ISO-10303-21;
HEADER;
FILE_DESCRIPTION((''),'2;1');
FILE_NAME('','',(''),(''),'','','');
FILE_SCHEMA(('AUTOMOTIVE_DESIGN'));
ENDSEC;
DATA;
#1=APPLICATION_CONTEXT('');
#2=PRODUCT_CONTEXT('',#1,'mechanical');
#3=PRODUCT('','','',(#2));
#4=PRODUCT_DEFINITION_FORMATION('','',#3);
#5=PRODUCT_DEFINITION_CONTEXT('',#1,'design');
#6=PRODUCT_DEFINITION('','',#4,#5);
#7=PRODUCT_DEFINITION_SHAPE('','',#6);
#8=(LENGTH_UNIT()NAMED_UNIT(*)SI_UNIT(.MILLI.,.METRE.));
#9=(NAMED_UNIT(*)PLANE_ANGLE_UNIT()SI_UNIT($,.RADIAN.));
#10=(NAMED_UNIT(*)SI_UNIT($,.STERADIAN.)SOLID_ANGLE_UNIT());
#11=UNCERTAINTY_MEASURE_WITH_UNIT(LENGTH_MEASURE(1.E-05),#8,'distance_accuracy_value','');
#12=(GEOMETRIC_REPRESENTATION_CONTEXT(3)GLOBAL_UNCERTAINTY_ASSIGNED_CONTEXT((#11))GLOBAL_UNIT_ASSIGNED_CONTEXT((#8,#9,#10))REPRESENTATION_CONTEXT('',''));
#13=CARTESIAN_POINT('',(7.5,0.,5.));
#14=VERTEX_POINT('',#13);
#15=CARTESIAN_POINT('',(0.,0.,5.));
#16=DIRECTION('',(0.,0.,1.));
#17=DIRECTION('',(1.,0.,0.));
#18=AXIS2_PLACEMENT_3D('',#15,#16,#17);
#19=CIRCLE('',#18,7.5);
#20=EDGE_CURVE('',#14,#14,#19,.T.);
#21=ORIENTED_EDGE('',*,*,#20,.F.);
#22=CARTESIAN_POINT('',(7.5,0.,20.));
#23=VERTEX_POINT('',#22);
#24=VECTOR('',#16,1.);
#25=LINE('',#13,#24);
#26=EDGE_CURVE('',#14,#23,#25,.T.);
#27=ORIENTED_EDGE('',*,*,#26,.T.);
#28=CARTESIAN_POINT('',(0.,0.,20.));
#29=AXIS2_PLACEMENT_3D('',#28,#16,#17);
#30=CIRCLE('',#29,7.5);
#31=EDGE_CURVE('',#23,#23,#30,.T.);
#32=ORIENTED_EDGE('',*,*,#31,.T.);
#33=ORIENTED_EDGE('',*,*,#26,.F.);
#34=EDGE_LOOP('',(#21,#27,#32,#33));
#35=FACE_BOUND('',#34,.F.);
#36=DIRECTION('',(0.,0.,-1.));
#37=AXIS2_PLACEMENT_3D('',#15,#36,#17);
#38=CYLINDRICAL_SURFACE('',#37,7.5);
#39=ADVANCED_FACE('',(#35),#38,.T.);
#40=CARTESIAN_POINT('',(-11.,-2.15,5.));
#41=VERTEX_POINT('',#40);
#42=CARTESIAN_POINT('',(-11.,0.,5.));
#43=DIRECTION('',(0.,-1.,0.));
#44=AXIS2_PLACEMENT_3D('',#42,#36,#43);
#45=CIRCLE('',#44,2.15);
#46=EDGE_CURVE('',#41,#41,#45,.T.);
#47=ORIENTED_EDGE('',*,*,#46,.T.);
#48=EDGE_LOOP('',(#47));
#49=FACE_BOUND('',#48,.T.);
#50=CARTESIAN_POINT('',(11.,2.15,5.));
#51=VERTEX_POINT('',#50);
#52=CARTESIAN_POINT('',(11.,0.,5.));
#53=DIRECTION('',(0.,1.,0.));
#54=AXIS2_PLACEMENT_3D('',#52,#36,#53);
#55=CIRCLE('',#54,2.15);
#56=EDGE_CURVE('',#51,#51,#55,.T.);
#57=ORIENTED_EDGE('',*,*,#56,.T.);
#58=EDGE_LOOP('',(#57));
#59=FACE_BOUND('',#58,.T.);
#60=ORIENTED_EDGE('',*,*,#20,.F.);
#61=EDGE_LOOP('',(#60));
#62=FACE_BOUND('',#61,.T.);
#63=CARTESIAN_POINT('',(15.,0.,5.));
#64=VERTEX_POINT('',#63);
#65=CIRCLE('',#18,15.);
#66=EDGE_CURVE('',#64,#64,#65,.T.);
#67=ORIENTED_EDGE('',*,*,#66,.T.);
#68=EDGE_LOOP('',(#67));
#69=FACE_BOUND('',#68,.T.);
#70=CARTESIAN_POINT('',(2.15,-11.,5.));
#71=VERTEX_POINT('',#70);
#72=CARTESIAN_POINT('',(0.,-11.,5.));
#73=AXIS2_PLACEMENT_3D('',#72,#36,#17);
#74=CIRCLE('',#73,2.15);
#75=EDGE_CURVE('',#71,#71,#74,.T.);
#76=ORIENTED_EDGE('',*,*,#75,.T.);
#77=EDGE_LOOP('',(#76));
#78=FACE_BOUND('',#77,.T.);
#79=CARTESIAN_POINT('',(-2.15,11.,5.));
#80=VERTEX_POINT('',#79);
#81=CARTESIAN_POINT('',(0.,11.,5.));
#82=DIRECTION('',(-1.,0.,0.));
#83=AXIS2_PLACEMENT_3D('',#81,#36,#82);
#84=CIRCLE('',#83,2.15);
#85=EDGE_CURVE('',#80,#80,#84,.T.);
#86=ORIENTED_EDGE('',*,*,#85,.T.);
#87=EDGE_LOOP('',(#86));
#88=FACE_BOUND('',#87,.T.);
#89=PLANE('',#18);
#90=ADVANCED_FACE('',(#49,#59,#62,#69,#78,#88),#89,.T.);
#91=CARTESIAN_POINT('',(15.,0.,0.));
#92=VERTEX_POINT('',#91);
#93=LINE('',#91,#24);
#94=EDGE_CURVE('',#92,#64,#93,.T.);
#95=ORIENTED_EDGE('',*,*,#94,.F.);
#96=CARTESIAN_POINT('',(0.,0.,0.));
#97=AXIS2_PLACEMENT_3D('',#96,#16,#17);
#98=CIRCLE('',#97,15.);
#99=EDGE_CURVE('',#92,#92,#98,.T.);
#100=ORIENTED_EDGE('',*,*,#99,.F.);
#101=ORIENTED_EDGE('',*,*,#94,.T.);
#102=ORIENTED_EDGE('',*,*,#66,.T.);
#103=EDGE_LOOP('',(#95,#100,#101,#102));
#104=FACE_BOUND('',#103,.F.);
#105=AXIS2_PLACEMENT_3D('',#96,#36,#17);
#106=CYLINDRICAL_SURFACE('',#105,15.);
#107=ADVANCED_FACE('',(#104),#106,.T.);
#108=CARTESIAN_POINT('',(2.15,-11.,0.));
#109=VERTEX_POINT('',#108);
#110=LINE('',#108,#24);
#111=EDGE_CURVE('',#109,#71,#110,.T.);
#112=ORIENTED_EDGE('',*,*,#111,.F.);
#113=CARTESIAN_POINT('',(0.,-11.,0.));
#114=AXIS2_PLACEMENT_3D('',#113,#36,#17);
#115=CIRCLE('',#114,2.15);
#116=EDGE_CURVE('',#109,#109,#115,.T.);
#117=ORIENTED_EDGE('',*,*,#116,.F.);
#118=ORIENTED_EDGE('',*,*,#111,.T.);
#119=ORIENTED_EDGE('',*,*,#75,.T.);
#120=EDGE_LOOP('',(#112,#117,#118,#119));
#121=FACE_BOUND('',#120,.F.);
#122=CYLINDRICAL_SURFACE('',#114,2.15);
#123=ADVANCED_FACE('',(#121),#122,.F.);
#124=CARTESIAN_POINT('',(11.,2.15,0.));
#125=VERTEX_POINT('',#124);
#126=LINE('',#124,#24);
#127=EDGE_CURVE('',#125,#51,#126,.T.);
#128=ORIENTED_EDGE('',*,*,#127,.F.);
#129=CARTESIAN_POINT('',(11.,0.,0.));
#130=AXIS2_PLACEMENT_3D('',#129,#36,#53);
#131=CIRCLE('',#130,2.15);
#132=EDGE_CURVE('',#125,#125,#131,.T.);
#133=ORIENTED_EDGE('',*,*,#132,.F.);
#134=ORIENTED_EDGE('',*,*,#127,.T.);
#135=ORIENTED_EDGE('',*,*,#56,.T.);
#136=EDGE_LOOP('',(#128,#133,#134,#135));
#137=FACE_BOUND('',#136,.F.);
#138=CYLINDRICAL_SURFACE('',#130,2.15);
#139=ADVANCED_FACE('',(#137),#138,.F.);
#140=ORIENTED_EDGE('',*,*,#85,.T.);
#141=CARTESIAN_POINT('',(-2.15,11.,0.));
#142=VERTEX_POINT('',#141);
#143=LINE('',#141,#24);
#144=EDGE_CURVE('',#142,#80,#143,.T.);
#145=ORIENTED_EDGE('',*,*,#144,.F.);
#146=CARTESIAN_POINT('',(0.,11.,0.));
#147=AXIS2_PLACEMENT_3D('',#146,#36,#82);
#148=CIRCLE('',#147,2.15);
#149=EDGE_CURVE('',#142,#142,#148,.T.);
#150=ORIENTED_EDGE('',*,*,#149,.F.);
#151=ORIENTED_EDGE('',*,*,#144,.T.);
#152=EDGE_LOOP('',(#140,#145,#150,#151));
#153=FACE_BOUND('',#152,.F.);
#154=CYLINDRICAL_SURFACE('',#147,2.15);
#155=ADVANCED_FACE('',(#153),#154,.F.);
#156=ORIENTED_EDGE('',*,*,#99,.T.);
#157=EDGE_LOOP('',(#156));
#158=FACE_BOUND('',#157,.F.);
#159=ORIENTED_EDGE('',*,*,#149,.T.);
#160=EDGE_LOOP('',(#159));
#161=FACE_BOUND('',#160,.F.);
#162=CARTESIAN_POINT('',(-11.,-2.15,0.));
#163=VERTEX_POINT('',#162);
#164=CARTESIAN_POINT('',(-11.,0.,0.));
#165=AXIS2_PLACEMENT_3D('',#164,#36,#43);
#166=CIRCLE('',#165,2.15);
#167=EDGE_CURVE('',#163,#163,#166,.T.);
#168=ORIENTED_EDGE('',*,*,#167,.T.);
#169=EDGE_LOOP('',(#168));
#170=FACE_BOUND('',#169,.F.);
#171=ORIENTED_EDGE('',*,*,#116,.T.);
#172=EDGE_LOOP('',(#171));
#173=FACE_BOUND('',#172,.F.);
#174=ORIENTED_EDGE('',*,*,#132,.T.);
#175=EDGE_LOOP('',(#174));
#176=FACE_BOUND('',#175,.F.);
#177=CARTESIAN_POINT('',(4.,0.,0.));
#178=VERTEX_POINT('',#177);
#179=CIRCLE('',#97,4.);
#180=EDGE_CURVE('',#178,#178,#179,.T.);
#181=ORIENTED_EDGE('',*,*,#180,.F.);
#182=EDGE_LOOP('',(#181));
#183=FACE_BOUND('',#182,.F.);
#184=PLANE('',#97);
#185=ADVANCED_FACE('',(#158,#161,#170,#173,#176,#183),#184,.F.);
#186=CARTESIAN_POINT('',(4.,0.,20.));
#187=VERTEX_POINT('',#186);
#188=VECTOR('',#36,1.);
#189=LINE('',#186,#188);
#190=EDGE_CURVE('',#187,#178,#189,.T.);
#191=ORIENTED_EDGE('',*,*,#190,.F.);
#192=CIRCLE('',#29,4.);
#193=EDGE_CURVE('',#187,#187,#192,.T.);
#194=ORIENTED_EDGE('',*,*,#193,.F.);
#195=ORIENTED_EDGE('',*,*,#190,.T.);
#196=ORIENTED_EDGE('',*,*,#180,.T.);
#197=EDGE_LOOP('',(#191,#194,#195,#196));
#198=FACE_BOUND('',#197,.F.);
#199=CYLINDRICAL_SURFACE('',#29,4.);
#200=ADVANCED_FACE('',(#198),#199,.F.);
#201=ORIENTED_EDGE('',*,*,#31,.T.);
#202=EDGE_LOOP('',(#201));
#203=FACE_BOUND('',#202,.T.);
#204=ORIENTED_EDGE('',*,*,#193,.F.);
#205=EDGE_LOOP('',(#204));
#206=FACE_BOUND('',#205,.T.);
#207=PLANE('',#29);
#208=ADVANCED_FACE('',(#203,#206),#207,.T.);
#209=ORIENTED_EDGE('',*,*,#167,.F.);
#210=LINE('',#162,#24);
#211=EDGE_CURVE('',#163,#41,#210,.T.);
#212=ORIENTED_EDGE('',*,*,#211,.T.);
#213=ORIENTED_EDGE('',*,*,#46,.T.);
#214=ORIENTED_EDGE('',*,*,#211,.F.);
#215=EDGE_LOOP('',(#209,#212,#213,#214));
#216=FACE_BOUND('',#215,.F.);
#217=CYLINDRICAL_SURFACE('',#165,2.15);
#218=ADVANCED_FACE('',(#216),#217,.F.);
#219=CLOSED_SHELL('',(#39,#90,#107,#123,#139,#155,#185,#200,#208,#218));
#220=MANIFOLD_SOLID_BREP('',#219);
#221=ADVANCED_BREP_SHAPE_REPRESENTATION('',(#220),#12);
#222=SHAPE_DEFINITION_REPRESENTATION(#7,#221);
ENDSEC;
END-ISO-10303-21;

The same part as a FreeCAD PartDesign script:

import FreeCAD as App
import Part
import Sketcher

V = App.Vector
Q = App.Units.Quantity

doc = App.newDocument("Part")
params = doc.addObject("Spreadsheet::Sheet", "Params")
for row, (alias, value) in enumerate([
    ("sketch1_diameter", "30 mm"),
    ("pad1_length", "5 mm"),
    ("sketch2_diameter", "15 mm"),
    ("pad2_length", "15 mm"),
    ("sketch3_diameter", "8 mm"),
    ("sketch4_diameter", "4.3 mm"),
], start=1):
    params.set(f"A{row}", alias)
    params.set(f"B{row}", "=" + value)
    params.setAlias(f"B{row}", alias)

body = doc.addObject("PartDesign::Body", "Body")

# Sketch on XY plane
sketch1 = body.newObject("Sketcher::SketchObject", "Sketch")
sketch1.AttachmentSupport = (doc.getObject("XY_Plane"), [""])
sketch1.MapMode = "FlatFace"
sketch1.addGeometry(Part.Circle(V(0, 0, 0), V(0, 0, 1), 15), False)
sketch1.addConstraint([
    Sketcher.Constraint("Coincident", 0, 3, -1, 1),
    Sketcher.Constraint("Diameter", 0, Q("30 mm")),
])
sketch1.setExpression("Constraints[1]", "Params.sketch1_diameter")
pad1 = body.newObject("PartDesign::Pad", "Pad")
pad1.Profile = sketch1
pad1.setExpression("Length", "Params.pad1_length")

# Sketch on XY plane
sketch2 = body.newObject("Sketcher::SketchObject", "Sketch001")
sketch2.AttachmentSupport = (doc.getObject("XY_Plane"), [""])
sketch2.MapMode = "FlatFace"
sketch2.AttachmentOffset = App.Placement(V(0, 0, 5), App.Rotation())
sketch2.addGeometry(Part.Circle(V(0, 0, 0), V(0, 0, 1), 8), False)
sketch2.addConstraint([
    Sketcher.Constraint("Coincident", 0, 3, -1, 1),
    Sketcher.Constraint("Diameter", 0, Q("15 mm")),
])
sketch2.setExpression("Constraints[1]", "Params.sketch2_diameter")
pad2 = body.newObject("PartDesign::Pad", "Pad001")
pad2.Profile = sketch2
pad2.setExpression("Length", "Params.pad2_length")

# Sketch on XY plane
sketch3 = body.newObject("Sketcher::SketchObject", "Sketch002")
sketch3.AttachmentSupport = (doc.getObject("XY_Plane"), [""])
sketch3.MapMode = "FlatFace"
sketch3.AttachmentOffset = App.Placement(V(0, 0, 20), App.Rotation())
sketch3.addGeometry(Part.Circle(V(0, 0, 0), V(0, 0, 1), 4), False)
sketch3.addConstraint([
    Sketcher.Constraint("Coincident", 0, 3, -1, 1),
    Sketcher.Constraint("Diameter", 0, Q("8 mm")),
])
sketch3.setExpression("Constraints[1]", "Params.sketch3_diameter")
pocket1 = body.newObject("PartDesign::Pocket", "Pocket")
pocket1.Profile = sketch3
pocket1.Type = "ThroughAll"

# Sketch on XY plane
sketch4 = body.newObject("Sketcher::SketchObject", "Sketch003")
sketch4.AttachmentSupport = (doc.getObject("XY_Plane"), [""])
sketch4.MapMode = "FlatFace"
sketch4.addGeometry(Part.Circle(V(0, 11, 0), V(0, 0, 1), 2.1), False)
sketch4.addConstraint([
    Sketcher.Constraint("PointOnObject", 0, 3, -2),
    Sketcher.Constraint("Diameter", 0, Q("4.3 mm")),
    Sketcher.Constraint("DistanceY", -1, 1, 0, 3, Q("11 mm")),
])
sketch4.setExpression("Constraints[1]", "Params.sketch4_diameter")
pocket2 = body.newObject("PartDesign::Pocket", "Pocket001")
pocket2.Profile = sketch4
pocket2.Type = "ThroughAll"
pocket2.Reversed = True
doc.recompute()

polarpattern = body.newObject("PartDesign::PolarPattern", "PolarPattern")
polarpattern.Originals = [pocket2]
polarpattern.Axis = (doc.getObject("Z_Axis"), [""])
polarpattern.Angle = 360
polarpattern.Occurrences = 4
body.Tip = polarpattern

doc.recompute()
